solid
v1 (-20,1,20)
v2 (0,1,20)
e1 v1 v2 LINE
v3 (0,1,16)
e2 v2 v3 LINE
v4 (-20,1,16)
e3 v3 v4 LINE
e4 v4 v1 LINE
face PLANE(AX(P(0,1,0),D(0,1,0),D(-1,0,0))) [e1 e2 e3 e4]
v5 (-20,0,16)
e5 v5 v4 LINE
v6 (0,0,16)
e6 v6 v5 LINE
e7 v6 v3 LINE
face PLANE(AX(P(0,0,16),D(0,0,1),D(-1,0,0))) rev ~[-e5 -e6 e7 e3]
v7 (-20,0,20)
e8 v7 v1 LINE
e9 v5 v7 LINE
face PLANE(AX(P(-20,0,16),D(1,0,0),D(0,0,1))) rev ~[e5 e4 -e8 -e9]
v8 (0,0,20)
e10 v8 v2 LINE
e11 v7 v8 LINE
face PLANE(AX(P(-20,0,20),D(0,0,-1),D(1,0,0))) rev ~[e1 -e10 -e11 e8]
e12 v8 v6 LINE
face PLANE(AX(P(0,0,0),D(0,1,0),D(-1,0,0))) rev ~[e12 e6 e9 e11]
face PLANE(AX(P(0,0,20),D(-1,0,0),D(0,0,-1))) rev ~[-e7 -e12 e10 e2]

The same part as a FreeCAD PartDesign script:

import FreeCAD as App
import Part
import Sketcher
Q = App.Units.Quantity


def add_polygon(sketch, points):
    """Adds a closed chain of lines whose ends are joined by coincident constraints."""
    first, n = sketch.GeometryCount, len(points)
    for a, b in zip(points, points[1:] + points[:1]):
        sketch.addGeometry(Part.LineSegment(App.Vector(*a, 0), App.Vector(*b, 0)), False)
    for i in range(n):
        sketch.addConstraint(Sketcher.Constraint("Coincident", first + i, 2, first + (i + 1) % n, 1))

doc = App.newDocument("Part")
body = doc.addObject("PartDesign::Body", "Body")

# Sketch on XZ plane
sketch1 = body.newObject("Sketcher::SketchObject", "Sketch")
sketch1.AttachmentSupport = (doc.getObject("XZ_Plane"), [""])
sketch1.MapMode = "FlatFace"
add_polygon(sketch1, [(0, 20), (0, 16), (-20, 16), (-20, 20)])  # lines 0-3
sketch1.addConstraint(Sketcher.Constraint("Vertical", 0))
sketch1.addConstraint(Sketcher.Constraint("Horizontal", 1))
sketch1.addConstraint(Sketcher.Constraint("Vertical", 2))
sketch1.addConstraint(Sketcher.Constraint("Horizontal", 3))
sketch1.addConstraint(Sketcher.Constraint("PointOnObject", 0, 2, -2))
sketch1.addConstraint(Sketcher.Constraint("DistanceX", 1, 2, 1, 1, Q("20 mm")))
sketch1.addConstraint(Sketcher.Constraint("DistanceY", 0, 2, 0, 1, Q("4 mm")))
sketch1.addConstraint(Sketcher.Constraint("DistanceY", -1, 1, 2, 2, Q("20 mm")))
pad1 = body.newObject("PartDesign::Pad", "Pad")
pad1.Profile = sketch1
pad1.Length = 1
pad1.Reversed = True

doc.recompute()
